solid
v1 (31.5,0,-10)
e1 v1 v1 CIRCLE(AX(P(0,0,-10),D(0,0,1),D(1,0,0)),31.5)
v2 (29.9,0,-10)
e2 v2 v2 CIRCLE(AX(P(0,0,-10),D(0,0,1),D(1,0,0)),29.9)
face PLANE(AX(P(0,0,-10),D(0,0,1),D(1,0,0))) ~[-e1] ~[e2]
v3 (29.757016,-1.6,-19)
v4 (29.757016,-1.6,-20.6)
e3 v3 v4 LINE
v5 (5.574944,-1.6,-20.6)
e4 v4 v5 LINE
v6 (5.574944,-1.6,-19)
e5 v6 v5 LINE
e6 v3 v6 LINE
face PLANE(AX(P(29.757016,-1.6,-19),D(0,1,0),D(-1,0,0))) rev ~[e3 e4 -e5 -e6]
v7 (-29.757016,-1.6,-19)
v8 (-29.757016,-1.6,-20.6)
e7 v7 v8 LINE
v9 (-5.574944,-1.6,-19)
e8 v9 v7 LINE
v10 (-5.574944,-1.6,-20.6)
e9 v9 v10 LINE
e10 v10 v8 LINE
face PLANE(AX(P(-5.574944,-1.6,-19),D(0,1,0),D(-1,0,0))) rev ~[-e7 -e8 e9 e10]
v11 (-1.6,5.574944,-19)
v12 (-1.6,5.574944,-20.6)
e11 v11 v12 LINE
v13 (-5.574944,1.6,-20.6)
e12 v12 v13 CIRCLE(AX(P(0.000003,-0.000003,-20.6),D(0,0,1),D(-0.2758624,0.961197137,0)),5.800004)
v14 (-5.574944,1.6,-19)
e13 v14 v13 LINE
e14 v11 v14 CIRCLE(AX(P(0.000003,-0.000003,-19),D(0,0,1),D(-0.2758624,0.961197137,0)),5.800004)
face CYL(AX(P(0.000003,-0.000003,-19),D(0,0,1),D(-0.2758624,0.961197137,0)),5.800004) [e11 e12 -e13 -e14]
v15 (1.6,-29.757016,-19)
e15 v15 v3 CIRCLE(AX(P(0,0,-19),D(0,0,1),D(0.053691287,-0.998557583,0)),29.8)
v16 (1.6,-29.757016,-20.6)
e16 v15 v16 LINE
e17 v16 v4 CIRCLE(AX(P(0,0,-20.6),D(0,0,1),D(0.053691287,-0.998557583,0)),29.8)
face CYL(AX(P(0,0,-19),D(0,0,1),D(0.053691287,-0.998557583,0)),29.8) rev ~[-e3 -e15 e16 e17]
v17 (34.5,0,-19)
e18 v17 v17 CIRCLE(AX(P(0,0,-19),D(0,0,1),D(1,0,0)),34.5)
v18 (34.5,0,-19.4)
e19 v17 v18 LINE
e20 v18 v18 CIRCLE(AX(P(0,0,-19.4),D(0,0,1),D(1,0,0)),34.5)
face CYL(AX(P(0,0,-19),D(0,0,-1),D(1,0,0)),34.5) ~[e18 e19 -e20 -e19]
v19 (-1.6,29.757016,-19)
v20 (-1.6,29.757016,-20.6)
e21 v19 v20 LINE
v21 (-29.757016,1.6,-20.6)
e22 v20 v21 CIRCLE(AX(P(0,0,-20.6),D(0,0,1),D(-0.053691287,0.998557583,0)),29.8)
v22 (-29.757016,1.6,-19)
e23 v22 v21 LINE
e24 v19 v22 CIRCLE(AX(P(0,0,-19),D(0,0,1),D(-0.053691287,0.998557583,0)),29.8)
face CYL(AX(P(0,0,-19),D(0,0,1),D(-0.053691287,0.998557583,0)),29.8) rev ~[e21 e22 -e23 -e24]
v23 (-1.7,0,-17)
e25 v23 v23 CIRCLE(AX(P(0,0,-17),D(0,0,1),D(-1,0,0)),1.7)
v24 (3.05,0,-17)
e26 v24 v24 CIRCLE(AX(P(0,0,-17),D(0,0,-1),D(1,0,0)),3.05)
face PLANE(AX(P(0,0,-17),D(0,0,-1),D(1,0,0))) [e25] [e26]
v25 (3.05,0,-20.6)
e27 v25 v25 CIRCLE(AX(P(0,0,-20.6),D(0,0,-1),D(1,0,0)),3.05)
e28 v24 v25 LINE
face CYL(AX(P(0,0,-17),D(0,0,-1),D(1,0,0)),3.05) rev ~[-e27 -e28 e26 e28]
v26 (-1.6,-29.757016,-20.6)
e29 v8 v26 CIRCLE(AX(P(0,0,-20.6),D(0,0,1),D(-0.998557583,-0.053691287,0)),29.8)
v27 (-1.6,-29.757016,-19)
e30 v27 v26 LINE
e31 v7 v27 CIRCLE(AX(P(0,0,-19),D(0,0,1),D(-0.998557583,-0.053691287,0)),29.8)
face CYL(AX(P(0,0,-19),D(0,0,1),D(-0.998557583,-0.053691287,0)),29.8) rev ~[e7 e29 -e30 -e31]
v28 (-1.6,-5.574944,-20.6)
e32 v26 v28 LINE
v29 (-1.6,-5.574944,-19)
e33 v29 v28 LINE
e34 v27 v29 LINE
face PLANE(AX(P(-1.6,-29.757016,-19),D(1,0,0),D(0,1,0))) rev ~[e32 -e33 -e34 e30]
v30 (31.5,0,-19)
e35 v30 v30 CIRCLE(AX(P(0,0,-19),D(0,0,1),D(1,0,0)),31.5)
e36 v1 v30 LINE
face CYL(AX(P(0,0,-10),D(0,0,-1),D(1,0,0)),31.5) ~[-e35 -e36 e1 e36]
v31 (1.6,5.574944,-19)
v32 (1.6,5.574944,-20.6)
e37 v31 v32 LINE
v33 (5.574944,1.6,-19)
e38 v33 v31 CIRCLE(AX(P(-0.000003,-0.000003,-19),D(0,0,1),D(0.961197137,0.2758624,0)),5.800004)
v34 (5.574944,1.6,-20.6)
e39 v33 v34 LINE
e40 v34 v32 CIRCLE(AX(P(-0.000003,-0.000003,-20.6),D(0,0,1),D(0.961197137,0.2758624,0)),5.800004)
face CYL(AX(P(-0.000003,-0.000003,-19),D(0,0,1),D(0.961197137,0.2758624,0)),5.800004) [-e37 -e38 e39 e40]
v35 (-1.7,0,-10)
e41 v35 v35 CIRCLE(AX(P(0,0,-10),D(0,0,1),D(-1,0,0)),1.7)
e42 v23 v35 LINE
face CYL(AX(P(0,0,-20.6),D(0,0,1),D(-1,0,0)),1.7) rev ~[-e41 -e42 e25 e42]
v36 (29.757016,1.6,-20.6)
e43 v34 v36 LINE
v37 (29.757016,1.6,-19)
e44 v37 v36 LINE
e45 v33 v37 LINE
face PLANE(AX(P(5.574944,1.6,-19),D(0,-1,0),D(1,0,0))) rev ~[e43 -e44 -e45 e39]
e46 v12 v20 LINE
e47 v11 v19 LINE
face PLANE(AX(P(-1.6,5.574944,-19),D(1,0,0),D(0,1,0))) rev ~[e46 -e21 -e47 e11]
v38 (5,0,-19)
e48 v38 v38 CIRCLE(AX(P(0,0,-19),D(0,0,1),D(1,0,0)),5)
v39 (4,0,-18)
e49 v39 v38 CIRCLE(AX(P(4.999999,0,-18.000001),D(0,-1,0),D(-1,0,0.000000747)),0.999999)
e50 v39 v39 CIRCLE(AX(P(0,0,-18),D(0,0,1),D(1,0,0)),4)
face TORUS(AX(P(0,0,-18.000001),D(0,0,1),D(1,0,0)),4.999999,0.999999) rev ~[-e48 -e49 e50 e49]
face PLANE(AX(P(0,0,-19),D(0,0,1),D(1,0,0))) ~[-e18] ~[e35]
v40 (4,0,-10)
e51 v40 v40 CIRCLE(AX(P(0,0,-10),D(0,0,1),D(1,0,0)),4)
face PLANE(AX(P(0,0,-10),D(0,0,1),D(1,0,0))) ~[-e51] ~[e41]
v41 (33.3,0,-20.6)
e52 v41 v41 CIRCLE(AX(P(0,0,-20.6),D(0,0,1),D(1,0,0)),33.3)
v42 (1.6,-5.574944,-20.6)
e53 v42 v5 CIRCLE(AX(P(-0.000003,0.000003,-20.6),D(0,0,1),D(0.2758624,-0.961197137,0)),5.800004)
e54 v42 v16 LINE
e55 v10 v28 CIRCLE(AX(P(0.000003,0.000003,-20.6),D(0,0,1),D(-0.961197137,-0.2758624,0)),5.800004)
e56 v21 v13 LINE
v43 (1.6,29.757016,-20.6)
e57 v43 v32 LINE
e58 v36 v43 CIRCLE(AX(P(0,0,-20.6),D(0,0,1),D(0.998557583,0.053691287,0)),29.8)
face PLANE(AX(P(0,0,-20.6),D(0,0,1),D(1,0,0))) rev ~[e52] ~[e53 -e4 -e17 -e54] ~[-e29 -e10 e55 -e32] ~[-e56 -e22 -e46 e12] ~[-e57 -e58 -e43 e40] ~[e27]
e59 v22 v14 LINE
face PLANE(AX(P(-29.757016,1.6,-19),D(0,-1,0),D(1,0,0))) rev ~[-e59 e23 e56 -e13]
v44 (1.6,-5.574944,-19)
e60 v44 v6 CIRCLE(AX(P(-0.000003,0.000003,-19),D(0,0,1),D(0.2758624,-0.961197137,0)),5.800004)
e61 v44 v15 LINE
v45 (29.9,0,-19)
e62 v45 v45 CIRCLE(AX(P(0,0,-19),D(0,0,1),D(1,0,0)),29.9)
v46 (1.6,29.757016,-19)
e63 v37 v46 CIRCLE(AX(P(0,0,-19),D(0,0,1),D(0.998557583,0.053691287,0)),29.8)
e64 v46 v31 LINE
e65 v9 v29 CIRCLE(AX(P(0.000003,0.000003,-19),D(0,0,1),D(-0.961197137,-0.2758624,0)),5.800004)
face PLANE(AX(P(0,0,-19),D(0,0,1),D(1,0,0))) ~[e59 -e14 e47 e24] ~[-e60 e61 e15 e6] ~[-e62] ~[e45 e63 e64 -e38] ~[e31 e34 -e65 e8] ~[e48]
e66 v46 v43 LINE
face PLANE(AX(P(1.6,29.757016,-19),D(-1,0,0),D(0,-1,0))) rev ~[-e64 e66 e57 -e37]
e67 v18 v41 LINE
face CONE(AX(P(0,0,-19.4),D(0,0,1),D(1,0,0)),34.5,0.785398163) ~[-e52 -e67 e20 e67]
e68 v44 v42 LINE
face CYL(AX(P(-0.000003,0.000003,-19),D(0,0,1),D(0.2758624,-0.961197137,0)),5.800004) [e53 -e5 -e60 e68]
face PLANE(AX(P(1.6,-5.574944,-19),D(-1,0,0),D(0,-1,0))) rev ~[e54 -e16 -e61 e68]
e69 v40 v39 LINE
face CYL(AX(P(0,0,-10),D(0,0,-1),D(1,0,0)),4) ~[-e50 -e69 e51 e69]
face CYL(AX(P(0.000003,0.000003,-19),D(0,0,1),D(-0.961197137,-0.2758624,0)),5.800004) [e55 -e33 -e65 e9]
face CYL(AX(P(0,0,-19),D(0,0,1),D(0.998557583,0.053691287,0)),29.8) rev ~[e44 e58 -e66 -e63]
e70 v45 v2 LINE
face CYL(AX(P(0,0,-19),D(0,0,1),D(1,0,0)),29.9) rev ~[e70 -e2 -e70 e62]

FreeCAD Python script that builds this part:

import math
import FreeCAD as App
import Part
import Sketcher
Q = App.Units.Quantity

doc = App.newDocument("Part")
body = doc.addObject("PartDesign::Body", "Body")

sketch1 = body.newObject("Sketcher::SketchObject", "Sketch")
sketch1.AttachmentSupport = (doc.getObject("XZ_Plane"), [""])
sketch1.MapMode = "FlatFace"
sketch1.addGeometry(Part.LineSegment(App.Vector(31.5, 0, 0), App.Vector(31.5, 9, 0)), False)
sketch1.addGeometry(Part.LineSegment(App.Vector(31.5, 9, 0), App.Vector(29.9, 9, 0)), False)
sketch1.addGeometry(Part.LineSegment(App.Vector(29.9, 9, 0), App.Vector(29.9, 0, 0)), False)
sketch1.addGeometry(Part.LineSegment(App.Vector(29.9, 0, 0), App.Vector(5, 0, 0)), False)
sketch1.addGeometry(Part.ArcOfCircle(Part.Circle(App.Vector(5, 1, 0), App.Vector(0, 0, 1), 1), math.radians(180), math.radians(270)), False)
sketch1.addGeometry(Part.LineSegment(App.Vector(4, 1, 0), App.Vector(4, 9, 0)), False)
sketch1.addGeometry(Part.LineSegment(App.Vector(4, 9, 0), App.Vector(0, 9, 0)), False)
sketch1.addGeometry(Part.LineSegment(App.Vector(0, 9, 0), App.Vector(0, -1.6, 0)), False)
sketch1.addGeometry(Part.LineSegment(App.Vector(0, -1.6, 0), App.Vector(33.3, -1.6, 0)), False)
sketch1.addGeometry(Part.LineSegment(App.Vector(33.3, -1.6, 0), App.Vector(34.5, -0.4, 0)), False)
sketch1.addGeometry(Part.LineSegment(App.Vector(34.5, -0.4, 0), App.Vector(34.5, 0, 0)), False)
sketch1.addGeometry(Part.LineSegment(App.Vector(34.5, 0, 0), App.Vector(31.5, 0, 0)), False)
sketch1.addConstraint(Sketcher.Constraint("Coincident", 0, 2, 1, 1))
sketch1.addConstraint(Sketcher.Constraint("Coincident", 1, 2, 2, 1))
sketch1.addConstraint(Sketcher.Constraint("Coincident", 2, 2, 3, 1))
sketch1.addConstraint(Sketcher.Constraint("Tangent", 3, 2, 4, 2))
sketch1.addConstraint(Sketcher.Constraint("Tangent", 4, 1, 5, 1))
sketch1.addConstraint(Sketcher.Constraint("Coincident", 5, 2, 6, 1))
sketch1.addConstraint(Sketcher.Constraint("Coincident", 6, 2, 7, 1))
sketch1.addConstraint(Sketcher.Constraint("Coincident", 7, 2, 8, 1))
sketch1.addConstraint(Sketcher.Constraint("Coincident", 8, 2, 9, 1))
sketch1.addConstraint(Sketcher.Constraint("Coincident", 9, 2, 10, 1))
sketch1.addConstraint(Sketcher.Constraint("Coincident", 10, 2, 11, 1))
sketch1.addConstraint(Sketcher.Constraint("Coincident", 11, 2, 0, 1))
sketch1.addConstraint(Sketcher.Constraint("Vertical", 0))
sketch1.addConstraint(Sketcher.Constraint("Horizontal", 1))
sketch1.addConstraint(Sketcher.Constraint("Vertical", 2))
sketch1.addConstraint(Sketcher.Constraint("Horizontal", 3))
sketch1.addConstraint(Sketcher.Constraint("Vertical", 5))
sketch1.addConstraint(Sketcher.Constraint("Horizontal", 6))
sketch1.addConstraint(Sketcher.Constraint("Vertical", 7))
sketch1.addConstraint(Sketcher.Constraint("Horizontal", 8))
sketch1.addConstraint(Sketcher.Constraint("Vertical", 10))
sketch1.addConstraint(Sketcher.Constraint("Horizontal", 11))
sketch1.addConstraint(Sketcher.Constraint("PointOnObject", 2, 2, -1))
sketch1.addConstraint(Sketcher.Constraint("PointOnObject", 6, 2, -2))
sketch1.addConstraint(Sketcher.Constraint("PointOnObject", 10, 2, -1))
sketch1.addConstraint(Sketcher.Constraint("Horizontal", 1, 2, 5, 2))
sketch1.addConstraint(Sketcher.Constraint("Radius", 4, Q("0.999999 mm")))
sketch1.addConstraint(Sketcher.Constraint("DistanceX", 6, 2, 6, 1, Q("4 mm")))
sketch1.addConstraint(Sketcher.Constraint("DistanceX", 11, 2, 11, 1, Q("3 mm")))
sketch1.addConstraint(Sketcher.Constraint("DistanceY", 0, 1, 0, 2, Q("9 mm")))
sketch1.addConstraint(Sketcher.Constraint("Angle", 9, Q("45 deg")))
sketch1.addConstraint(Sketcher.Constraint("DistanceX", 1, 2, 1, 1, Q("1.6 mm")))
sketch1.addConstraint(Sketcher.Constraint("DistanceX", 3, 2, 3, 1, Q("24.9 mm")))
sketch1.addConstraint(Sketcher.Constraint("DistanceX", 8, 1, 8, 2, Q("33.3 mm")))
sketch1.addConstraint(Sketcher.Constraint("DistanceY", 7, 2, 7, 1, Q("10.6 mm")))
revolution = body.newObject("PartDesign::Revolution", "Revolution")
revolution.Profile = sketch1
revolution.ReferenceAxis = (sketch1, ["V_Axis"])
revolution.Angle = 360

sketch2 = body.newObject("Sketcher::SketchObject", "Sketch001")
sketch2.AttachmentSupport = (doc.getObject("XY_Plane"), [""])
sketch2.MapMode = "FlatFace"
sketch2.addGeometry(Part.ArcOfCircle(Part.Circle(App.Vector(0, 0, 0), App.Vector(0, 0, 1), 30), math.radians(3), math.radians(87)), False)
sketch2.addGeometry(Part.LineSegment(App.Vector(2, 30, 0), App.Vector(2, 6, 0)), False)
sketch2.addGeometry(Part.ArcOfCircle(Part.Circle(App.Vector(0, 0, 0), App.Vector(0, 0, 1), 6), math.radians(16), math.radians(74)), False)
sketch2.addGeometry(Part.LineSegment(App.Vector(6, 2, 0), App.Vector(30, 2, 0)), False)
sketch2.addConstraint(Sketcher.Constraint("Coincident", 0, 2, 1, 1))
sketch2.addConstraint(Sketcher.Constraint("Coincident", 1, 2, 2, 2))
sketch2.addConstraint(Sketcher.Constraint("Coincident", 2, 1, 3, 1))
sketch2.addConstraint(Sketcher.Constraint("Coincident", 3, 2, 0, 1))
sketch2.addConstraint(Sketcher.Constraint("Vertical", 1))
sketch2.addConstraint(Sketcher.Constraint("Horizontal", 3))
sketch2.addConstraint(Sketcher.Constraint("Coincident", 0, 3, -1, 1))
sketch2.addConstraint(Sketcher.Constraint("Coincident", 2, 3, -1, 1))
sketch2.addConstraint(Sketcher.Constraint("Equal", 3, 1))
sketch2.addConstraint(Sketcher.Constraint("Radius", 0, Q("29.8 mm")))
sketch2.addConstraint(Sketcher.Constraint("DistanceX", -1, 1, 0, 2, Q("1.6 mm")))
sketch2.addConstraint(Sketcher.Constraint("Radius", 2, Q("5.800004 mm")))
pocket1 = body.newObject("PartDesign::Pocket", "Pocket")
pocket1.Profile = sketch2
pocket1.Type = "ThroughAll"
doc.recompute()

polarpattern = body.newObject("PartDesign::PolarPattern", "PolarPattern")
polarpattern.Originals = [pocket1]
polarpattern.Axis = (doc.getObject("Z_Axis"), [""])
polarpattern.Angle = 360
polarpattern.Occurrences = 4
body.Tip = polarpattern

sketch3 = body.newObject("Sketcher::SketchObject", "Sketch002")
sketch3.AttachmentSupport = (doc.getObject("XY_Plane"), [""])
sketch3.MapMode = "FlatFace"
sketch3.AttachmentOffset = App.Placement(App.Vector(0, 0, -1.6), App.Rotation())
sketch3.addGeometry(Part.Circle(App.Vector(0, 0, 0), App.Vector(0, 0, 1), 1.7), False)
sketch3.addConstraint(Sketcher.Constraint("Coincident", 0, 3, -1, 1))
sketch3.addConstraint(Sketcher.Constraint("Diameter", 0, Q("3.4 mm")))
doc.recompute()
hole = body.newObject("PartDesign::Hole", "Hole")
hole.Profile = sketch3
hole.ThreadType = "None"
hole.Diameter = 3.4
hole.DepthType = "ThroughAll"
hole.HoleCutType = "Counterbore"
hole.HoleCutDiameter = 6.1
hole.HoleCutDepth = 3.6
hole.Reversed = True
body2 = doc.addObject("PartDesign::Body", "Body001")
doc.recompute()

body.Placement = App.Placement(App.Vector(0, 0, -19), App.Rotation(App.Vector(0, 0, 1), 0))
boolean = body2.newObject("PartDesign::Boolean", "Boolean")
boolean.Type = "Fuse"
boolean.addObjects([body])

doc.recompute()
